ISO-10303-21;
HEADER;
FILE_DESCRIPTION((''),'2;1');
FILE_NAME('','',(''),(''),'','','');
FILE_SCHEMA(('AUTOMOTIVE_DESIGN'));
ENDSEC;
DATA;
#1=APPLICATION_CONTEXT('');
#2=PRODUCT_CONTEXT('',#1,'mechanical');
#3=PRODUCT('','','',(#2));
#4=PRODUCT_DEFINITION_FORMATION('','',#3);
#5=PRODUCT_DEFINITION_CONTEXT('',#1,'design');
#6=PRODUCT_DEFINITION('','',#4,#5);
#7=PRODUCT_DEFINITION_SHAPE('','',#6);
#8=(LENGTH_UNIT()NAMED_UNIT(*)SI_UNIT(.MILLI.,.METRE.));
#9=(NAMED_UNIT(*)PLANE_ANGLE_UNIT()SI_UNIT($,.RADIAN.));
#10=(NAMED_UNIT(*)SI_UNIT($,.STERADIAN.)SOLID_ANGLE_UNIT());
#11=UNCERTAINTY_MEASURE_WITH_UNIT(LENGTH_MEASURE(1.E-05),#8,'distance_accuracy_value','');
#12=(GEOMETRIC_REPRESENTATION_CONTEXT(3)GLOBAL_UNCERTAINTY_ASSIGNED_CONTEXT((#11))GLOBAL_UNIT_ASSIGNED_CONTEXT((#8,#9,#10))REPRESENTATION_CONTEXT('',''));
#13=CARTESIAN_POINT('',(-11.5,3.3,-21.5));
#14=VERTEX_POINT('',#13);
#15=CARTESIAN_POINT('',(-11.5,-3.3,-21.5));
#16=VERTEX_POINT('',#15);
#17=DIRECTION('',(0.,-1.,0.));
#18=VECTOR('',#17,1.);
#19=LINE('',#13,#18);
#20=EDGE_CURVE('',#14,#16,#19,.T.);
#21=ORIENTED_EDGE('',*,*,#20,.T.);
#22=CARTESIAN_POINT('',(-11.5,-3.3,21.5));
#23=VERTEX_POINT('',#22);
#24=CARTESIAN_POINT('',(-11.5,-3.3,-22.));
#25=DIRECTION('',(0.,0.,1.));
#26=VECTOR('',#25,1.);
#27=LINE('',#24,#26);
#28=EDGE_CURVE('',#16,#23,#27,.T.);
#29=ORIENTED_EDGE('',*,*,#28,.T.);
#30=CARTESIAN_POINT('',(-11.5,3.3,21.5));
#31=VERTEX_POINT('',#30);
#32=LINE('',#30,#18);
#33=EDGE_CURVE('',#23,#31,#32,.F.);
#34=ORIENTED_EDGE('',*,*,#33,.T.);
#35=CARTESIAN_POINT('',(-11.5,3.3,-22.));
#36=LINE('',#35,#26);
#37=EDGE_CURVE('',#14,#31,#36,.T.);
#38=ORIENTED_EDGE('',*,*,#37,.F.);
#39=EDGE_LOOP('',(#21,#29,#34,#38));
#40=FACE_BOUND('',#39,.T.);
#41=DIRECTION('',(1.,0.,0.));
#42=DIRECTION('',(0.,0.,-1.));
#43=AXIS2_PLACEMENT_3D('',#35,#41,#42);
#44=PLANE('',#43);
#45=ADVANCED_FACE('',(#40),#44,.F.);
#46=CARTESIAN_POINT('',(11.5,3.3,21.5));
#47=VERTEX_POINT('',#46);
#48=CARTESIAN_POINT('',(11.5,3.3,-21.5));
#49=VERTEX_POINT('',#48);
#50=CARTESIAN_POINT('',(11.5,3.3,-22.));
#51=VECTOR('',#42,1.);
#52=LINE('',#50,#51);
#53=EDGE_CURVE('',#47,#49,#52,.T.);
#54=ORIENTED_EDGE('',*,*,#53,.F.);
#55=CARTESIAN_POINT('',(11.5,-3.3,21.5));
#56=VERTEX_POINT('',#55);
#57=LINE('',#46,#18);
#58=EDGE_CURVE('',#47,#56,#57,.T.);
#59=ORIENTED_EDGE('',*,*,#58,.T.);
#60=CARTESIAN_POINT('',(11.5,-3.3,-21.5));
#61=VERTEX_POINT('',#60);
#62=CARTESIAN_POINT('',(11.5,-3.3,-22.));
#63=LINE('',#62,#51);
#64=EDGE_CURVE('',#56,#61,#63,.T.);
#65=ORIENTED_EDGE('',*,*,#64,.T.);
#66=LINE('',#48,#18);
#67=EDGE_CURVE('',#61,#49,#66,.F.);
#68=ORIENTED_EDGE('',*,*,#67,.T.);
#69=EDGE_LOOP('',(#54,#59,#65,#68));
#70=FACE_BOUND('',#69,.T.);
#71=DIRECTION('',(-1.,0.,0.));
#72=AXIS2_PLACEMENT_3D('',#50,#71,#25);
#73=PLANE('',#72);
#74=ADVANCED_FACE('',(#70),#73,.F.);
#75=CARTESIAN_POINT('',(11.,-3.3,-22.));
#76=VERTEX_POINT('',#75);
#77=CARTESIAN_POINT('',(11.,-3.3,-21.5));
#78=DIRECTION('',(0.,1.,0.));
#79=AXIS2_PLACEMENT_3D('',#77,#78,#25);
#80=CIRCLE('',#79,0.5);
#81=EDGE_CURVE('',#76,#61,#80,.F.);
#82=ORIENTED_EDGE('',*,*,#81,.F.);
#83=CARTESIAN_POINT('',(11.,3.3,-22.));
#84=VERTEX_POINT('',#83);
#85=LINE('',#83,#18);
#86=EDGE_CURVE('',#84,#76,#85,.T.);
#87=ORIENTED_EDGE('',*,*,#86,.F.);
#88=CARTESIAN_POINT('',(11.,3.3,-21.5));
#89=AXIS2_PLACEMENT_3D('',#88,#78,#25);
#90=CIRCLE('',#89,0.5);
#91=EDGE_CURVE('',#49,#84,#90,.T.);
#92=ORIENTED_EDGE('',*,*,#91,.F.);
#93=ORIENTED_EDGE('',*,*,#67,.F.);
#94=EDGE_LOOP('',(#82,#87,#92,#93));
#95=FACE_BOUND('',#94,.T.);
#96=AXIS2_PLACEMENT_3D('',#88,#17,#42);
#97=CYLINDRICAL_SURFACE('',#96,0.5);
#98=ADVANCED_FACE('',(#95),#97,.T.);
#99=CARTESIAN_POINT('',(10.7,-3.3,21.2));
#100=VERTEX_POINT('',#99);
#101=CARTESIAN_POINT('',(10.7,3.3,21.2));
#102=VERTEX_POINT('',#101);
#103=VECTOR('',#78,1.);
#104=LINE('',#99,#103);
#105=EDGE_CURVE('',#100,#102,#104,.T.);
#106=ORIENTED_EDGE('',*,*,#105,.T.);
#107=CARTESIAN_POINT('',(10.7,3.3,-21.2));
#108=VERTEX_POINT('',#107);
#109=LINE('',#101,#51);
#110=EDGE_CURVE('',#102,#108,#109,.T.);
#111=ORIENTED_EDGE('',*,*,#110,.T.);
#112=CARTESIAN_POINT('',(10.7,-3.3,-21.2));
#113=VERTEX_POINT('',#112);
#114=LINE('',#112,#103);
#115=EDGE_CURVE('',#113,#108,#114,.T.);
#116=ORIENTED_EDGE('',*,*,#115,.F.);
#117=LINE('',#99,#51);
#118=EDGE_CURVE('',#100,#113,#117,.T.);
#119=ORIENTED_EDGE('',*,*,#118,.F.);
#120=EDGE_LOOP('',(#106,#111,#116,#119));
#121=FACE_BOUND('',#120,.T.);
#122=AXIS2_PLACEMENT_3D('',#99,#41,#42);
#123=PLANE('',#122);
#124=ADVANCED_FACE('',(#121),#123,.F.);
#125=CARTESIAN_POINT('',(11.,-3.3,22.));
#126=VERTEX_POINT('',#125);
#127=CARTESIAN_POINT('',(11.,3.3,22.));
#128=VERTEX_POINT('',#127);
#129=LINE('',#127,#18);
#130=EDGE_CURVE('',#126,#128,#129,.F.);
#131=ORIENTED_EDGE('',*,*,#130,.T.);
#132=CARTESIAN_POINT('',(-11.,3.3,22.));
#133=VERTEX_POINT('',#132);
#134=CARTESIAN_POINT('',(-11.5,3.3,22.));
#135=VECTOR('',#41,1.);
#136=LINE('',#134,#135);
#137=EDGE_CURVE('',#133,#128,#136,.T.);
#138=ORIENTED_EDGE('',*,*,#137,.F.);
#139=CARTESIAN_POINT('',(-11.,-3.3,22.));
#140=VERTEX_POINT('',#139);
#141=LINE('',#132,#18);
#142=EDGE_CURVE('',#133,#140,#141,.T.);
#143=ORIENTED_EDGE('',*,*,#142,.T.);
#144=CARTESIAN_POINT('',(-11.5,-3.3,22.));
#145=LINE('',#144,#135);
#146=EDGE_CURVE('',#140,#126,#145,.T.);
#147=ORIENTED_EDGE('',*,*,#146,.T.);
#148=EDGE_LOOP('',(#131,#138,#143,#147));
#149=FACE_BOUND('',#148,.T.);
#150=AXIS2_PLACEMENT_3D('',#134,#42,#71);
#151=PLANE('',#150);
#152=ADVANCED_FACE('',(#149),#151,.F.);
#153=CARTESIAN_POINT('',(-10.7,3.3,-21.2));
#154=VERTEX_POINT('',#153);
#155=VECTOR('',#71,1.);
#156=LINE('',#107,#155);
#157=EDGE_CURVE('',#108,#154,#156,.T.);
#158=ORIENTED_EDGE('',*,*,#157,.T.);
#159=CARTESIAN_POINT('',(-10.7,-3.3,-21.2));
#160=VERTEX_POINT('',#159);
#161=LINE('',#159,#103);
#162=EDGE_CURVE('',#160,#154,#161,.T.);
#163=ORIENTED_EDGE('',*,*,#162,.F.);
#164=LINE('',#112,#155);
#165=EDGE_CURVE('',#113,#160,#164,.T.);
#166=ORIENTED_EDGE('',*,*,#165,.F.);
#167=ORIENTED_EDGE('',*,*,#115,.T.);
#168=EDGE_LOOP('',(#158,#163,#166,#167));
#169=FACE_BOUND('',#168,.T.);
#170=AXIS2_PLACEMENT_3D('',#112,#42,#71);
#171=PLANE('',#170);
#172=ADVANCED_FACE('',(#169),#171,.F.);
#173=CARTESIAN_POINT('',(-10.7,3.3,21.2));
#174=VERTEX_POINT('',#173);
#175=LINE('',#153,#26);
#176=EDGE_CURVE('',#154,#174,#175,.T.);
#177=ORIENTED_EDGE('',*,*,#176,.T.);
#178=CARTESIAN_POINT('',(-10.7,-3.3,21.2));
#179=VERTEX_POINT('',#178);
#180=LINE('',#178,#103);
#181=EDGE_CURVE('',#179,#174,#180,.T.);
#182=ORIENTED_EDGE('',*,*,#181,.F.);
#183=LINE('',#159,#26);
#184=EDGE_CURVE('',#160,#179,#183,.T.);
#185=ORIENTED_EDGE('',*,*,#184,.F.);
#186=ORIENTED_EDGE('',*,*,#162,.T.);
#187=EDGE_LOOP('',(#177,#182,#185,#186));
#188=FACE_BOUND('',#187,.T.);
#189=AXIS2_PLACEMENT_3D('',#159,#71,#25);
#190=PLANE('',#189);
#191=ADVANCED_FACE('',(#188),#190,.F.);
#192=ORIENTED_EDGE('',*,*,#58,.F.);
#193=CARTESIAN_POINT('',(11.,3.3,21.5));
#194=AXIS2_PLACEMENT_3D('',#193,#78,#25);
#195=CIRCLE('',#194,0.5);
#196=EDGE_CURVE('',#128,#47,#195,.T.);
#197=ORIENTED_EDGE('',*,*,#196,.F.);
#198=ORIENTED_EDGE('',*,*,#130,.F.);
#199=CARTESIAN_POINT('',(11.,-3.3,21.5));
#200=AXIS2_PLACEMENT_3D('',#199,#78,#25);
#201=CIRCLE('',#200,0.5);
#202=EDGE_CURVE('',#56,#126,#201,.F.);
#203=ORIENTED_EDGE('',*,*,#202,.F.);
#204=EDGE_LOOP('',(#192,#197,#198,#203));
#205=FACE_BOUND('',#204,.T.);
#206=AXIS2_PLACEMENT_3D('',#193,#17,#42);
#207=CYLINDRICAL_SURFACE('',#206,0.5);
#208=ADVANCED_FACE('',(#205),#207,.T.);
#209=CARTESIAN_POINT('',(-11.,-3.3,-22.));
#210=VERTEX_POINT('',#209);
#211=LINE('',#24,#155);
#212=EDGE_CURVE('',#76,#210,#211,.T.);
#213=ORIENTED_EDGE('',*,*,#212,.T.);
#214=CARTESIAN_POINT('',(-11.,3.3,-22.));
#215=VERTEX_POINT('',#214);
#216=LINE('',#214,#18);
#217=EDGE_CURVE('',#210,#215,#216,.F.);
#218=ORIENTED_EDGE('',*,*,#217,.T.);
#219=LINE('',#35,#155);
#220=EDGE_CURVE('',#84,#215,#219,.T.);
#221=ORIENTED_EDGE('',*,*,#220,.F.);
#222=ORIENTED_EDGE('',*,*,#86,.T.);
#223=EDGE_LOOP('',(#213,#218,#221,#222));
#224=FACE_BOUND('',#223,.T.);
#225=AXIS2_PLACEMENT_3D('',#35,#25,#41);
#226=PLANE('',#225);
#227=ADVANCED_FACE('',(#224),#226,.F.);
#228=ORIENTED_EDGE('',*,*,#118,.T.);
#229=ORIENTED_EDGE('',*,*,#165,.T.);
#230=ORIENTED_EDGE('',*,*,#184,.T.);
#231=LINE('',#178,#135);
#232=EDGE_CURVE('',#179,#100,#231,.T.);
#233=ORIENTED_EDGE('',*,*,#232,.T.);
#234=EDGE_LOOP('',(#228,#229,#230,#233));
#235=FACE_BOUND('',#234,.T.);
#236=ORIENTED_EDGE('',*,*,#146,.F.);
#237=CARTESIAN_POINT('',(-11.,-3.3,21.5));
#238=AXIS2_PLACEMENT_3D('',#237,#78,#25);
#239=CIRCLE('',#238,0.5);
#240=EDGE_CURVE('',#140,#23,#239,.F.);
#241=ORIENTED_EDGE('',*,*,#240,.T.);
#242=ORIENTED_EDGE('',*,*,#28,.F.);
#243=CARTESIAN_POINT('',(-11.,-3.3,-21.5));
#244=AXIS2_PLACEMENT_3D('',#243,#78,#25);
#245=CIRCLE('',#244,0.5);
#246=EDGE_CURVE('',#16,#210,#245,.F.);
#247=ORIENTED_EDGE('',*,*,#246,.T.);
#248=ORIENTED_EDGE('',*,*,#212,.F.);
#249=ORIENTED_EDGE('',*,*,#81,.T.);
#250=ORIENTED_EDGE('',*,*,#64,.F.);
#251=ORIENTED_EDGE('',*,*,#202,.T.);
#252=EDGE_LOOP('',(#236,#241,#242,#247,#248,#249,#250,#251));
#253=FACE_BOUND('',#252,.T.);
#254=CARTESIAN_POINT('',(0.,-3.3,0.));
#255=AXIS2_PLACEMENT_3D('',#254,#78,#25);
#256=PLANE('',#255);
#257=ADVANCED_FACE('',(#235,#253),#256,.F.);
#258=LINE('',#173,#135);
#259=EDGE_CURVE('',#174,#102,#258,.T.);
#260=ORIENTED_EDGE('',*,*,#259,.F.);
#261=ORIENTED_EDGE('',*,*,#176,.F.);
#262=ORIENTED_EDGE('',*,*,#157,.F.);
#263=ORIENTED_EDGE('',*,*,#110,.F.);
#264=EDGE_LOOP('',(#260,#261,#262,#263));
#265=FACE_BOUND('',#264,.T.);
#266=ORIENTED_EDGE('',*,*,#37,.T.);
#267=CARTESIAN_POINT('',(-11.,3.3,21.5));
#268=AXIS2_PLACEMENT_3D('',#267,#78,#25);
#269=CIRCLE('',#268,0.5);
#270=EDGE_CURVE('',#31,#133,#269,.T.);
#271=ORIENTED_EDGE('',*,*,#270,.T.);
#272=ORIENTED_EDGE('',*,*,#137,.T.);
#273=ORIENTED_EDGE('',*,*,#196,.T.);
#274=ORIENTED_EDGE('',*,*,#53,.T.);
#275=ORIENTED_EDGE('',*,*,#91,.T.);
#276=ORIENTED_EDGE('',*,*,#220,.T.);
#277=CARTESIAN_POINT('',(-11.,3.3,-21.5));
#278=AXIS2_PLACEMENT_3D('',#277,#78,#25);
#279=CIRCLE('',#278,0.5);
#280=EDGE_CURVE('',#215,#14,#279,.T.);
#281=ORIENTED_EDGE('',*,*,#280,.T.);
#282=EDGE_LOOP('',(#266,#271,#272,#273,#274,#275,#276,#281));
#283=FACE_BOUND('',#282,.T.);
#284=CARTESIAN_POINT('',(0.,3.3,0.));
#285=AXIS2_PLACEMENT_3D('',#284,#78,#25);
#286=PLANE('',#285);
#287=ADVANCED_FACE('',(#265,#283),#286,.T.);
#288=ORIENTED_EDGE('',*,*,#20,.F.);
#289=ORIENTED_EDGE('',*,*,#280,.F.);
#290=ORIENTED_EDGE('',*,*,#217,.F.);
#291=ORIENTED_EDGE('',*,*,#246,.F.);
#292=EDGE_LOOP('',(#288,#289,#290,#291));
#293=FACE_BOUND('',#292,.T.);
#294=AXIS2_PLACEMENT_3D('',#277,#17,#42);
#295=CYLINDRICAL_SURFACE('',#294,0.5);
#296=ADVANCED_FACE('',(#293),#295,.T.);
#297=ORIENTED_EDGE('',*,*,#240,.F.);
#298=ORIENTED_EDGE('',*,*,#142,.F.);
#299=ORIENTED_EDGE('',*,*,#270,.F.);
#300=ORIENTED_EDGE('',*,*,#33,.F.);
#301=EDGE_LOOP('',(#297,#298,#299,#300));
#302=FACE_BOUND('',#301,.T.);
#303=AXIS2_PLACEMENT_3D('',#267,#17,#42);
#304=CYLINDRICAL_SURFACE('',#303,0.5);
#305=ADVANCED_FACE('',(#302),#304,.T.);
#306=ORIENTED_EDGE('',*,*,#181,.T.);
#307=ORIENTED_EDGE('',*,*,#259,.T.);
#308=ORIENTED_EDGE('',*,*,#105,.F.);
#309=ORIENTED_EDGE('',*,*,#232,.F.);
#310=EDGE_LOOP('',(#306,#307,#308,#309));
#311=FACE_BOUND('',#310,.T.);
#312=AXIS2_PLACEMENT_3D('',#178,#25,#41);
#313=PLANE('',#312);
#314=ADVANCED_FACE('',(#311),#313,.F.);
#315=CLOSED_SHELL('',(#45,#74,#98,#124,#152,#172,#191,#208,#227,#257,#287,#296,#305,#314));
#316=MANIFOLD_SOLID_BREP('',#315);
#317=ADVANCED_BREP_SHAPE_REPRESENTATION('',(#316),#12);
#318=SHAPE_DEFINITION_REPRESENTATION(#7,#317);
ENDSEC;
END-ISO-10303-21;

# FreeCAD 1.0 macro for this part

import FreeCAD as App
import Part
import Sketcher
from FreeCAD import Vector
Q = App.Units.Quantity


def edges_at(feature, points):
    """Names of the edges that pass closest to the given points."""
    edges = feature.Shape.Edges
    near = lambda p: min(range(len(edges)), key=lambda i: edges[i].distToShape(Part.Vertex(*p))[0])
    return sorted({f"Edge{near(p) + 1}" for p in points})


def add_polygon(sketch, points):
    """Adds a closed chain of lines whose ends are joined by coincident constraints."""
    first, n = sketch.GeometryCount, len(points)
    for a, b in zip(points, points[1:] + points[:1]):
        sketch.addGeometry(Part.LineSegment(App.Vector(*a, 0), App.Vector(*b, 0)), False)
    for i in range(n):
        sketch.addConstraint(Sketcher.Constraint("Coincident", first + i, 2, first + (i + 1) % n, 1))

doc = App.newDocument("Part")
body = doc.addObject("PartDesign::Body", "Body")

# Sketch on XZ plane
sketch1 = body.newObject("Sketcher::SketchObject", "Sketch")
sketch1.AttachmentSupport = (doc.getObject("XZ_Plane"), [""])
sketch1.MapMode = "FlatFace"
add_polygon(sketch1, [(-12, -22), (-12, 22), (12, 22), (12, -22)])  # lines 0-3
sketch1.addConstraint(Sketcher.Constraint("Vertical", 0))
sketch1.addConstraint(Sketcher.Constraint("Horizontal", 1))
sketch1.addConstraint(Sketcher.Constraint("Vertical", 2))
sketch1.addConstraint(Sketcher.Constraint("Horizontal", 3))
sketch1.addConstraint(Sketcher.Constraint("Symmetric", 0, 2, 2, 2, -1, 1))
sketch1.addConstraint(Sketcher.Constraint("DistanceX", 1, 1, 1, 2, Q("23 mm")))
sketch1.addConstraint(Sketcher.Constraint("DistanceY", 0, 1, 0, 2, Q("44 mm")))
pad1 = body.newObject("PartDesign::Pad", "Pad")
pad1.Profile = sketch1
pad1.Length = 6.6
pad1.Midplane = True
doc.recompute()

fillet = body.newObject("PartDesign::Fillet", "Fillet")
fillet.Base = (pad1, edges_at(pad1, [
    (11.5, 0, 22),
    (-11.5, 0, 22),
    (-11.5, 0, -22),
    (11.5, 0, -22),
]))
fillet.Radius = 0.5

# Sketch on XZ plane
sketch2 = body.newObject("Sketcher::SketchObject", "Sketch001")
sketch2.AttachmentSupport = (doc.getObject("XZ_Plane"), [""])
sketch2.MapMode = "FlatFace"
sketch2.AttachmentOffset = App.Placement(Vector(0, 0, -3.3), App.Rotation())
add_polygon(sketch2, [(-11, -21), (-11, 21), (11, 21), (11, -21)])  # lines 0-3
sketch2.addConstraint(Sketcher.Constraint("Vertical", 0))
sketch2.addConstraint(Sketcher.Constraint("Horizontal", 1))
sketch2.addConstraint(Sketcher.Constraint("Vertical", 2))
sketch2.addConstraint(Sketcher.Constraint("Horizontal", 3))
sketch2.addConstraint(Sketcher.Constraint("Symmetric", 0, 2, 2, 2, -1, 1))
sketch2.addConstraint(Sketcher.Constraint("DistanceX", 1, 1, 1, 2, Q("21.4 mm")))
sketch2.addConstraint(Sketcher.Constraint("DistanceY", 0, 1, 0, 2, Q("42.4 mm")))
pocket1 = body.newObject("PartDesign::Pocket", "Pocket")
pocket1.Profile = sketch2
pocket1.Type = "ThroughAll"
pocket1.Reversed = True

doc.recompute()
